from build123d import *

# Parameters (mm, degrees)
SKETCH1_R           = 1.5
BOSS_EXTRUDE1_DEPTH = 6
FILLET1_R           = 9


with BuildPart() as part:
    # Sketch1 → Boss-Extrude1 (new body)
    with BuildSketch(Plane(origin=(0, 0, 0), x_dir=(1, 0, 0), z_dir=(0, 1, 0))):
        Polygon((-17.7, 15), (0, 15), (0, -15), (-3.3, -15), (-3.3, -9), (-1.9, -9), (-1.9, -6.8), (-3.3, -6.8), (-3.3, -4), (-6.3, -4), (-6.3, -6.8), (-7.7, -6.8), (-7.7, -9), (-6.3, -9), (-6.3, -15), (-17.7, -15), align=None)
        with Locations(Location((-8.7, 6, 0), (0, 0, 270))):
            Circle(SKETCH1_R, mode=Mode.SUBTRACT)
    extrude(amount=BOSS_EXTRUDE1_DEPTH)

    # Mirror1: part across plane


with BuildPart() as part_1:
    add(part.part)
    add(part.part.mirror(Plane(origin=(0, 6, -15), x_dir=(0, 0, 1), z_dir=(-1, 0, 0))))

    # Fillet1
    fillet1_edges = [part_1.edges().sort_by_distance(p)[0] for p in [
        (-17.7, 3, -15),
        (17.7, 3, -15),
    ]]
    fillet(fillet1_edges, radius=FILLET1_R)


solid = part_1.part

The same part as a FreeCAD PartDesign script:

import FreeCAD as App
import Part
import Sketcher
Q = App.Units.Quantity


def edges_at(feature, points):
    """Names of the edges that pass closest to the given points."""
    edges = feature.Shape.Edges
    near = lambda p: min(range(len(edges)), key=lambda i: edges[i].distToShape(Part.Vertex(*p))[0])
    return sorted({f"Edge{near(p) + 1}" for p in points})


def add_polygon(sketch, points):
    """Adds a closed chain of lines whose ends are joined by coincident constraints."""
    first, n = sketch.GeometryCount, len(points)
    for a, b in zip(points, points[1:] + points[:1]):
        sketch.addGeometry(Part.LineSegment(App.Vector(*a, 0), App.Vector(*b, 0)), False)
    for i in range(n):
        sketch.addConstraint(Sketcher.Constraint("Coincident", first + i, 2, first + (i + 1) % n, 1))

doc = App.newDocument("Part")
body = doc.addObject("PartDesign::Body", "Body")

# Sketch on XZ plane
sketch1 = body.newObject("Sketcher::SketchObject", "Sketch")
sketch1.AttachmentSupport = (doc.getObject("XZ_Plane"), [""])
sketch1.MapMode = "FlatFace"
add_polygon(sketch1, [(0, -15), (-17.7, -15), (-17.7, 15), (-6.3, 15), (-6.3, 9), (-7.7, 9), (-7.7, 6.8), (-6.3, 6.8), (-6.3, 4), (-3.3, 4), (-3.3, 6.8), (-1.9, 6.8), (-1.9, 9), (-3.3, 9), (-3.3, 15), (0, 15)])  # lines 0-15
sketch1.addGeometry(Part.Circle(App.Vector(-8.7, -6, 0), App.Vector(0, 0, 1), 1.5), False)  # 16
sketch1.addConstraint(Sketcher.Constraint("Horizontal", 0))
sketch1.addConstraint(Sketcher.Constraint("Vertical", 1))
sketch1.addConstraint(Sketcher.Constraint("Horizontal", 2))
sketch1.addConstraint(Sketcher.Constraint("Vertical", 3))
sketch1.addConstraint(Sketcher.Constraint("Horizontal", 4))
sketch1.addConstraint(Sketcher.Constraint("Vertical", 5))
sketch1.addConstraint(Sketcher.Constraint("Horizontal", 6))
sketch1.addConstraint(Sketcher.Constraint("Vertical", 7))
sketch1.addConstraint(Sketcher.Constraint("Horizontal", 8))
sketch1.addConstraint(Sketcher.Constraint("Vertical", 9))
sketch1.addConstraint(Sketcher.Constraint("Horizontal", 10))
sketch1.addConstraint(Sketcher.Constraint("Vertical", 11))
sketch1.addConstraint(Sketcher.Constraint("Horizontal", 12))
sketch1.addConstraint(Sketcher.Constraint("Vertical", 13))
sketch1.addConstraint(Sketcher.Constraint("Horizontal", 14))
sketch1.addConstraint(Sketcher.Constraint("Vertical", 15))
sketch1.addConstraint(Sketcher.Constraint("Symmetric", 14, 2, 15, 2, -1, 1))
sketch1.addConstraint(Sketcher.Constraint("Horizontal", 6, 2, 9, 2))
sketch1.addConstraint(Sketcher.Constraint("Horizontal", 4, 2, 11, 2))
sketch1.addConstraint(Sketcher.Constraint("Horizontal", 2, 2, 13, 2))
sketch1.addConstraint(Sketcher.Constraint("Vertical", 3, 2, 6, 2))
sketch1.addConstraint(Sketcher.Constraint("Vertical", 9, 2, 12, 2))
sketch1.addConstraint(Sketcher.Constraint("Equal", 6, 10))
sketch1.addConstraint(Sketcher.Constraint("Diameter", 16, Q("3 mm")))
sketch1.addConstraint(Sketcher.Constraint("DistanceX", 8, 1, 8, 2, Q("3 mm")))
sketch1.addConstraint(Sketcher.Constraint("DistanceY", 1, 1, 1, 2, Q("30 mm")))
sketch1.addConstraint(Sketcher.Constraint("DistanceY", 3, 2, 3, 1, Q("6 mm")))
sketch1.addConstraint(Sketcher.Constraint("DistanceX", 0, 2, 0, 1, Q("17.7 mm")))
sketch1.addConstraint(Sketcher.Constraint("DistanceX", 2, 1, 2, 2, Q("11.4 mm")))
sketch1.addConstraint(Sketcher.Constraint("DistanceX", 4, 2, 4, 1, Q("1.4 mm")))
sketch1.addConstraint(Sketcher.Constraint("DistanceY", 5, 2, 5, 1, Q("2.2 mm")))
sketch1.addConstraint(Sketcher.Constraint("DistanceY", 7, 2, 7, 1, Q("2.8 mm")))
sketch1.addConstraint(Sketcher.Constraint("DistanceY", 16, 3, -1, 1, Q("6 mm")))
sketch1.addConstraint(Sketcher.Constraint("DistanceX", 0, 2, 16, 3, Q("9 mm")))
pad1 = body.newObject("PartDesign::Pad", "Pad")
pad1.Profile = sketch1
pad1.Length = 6
pad1.Reversed = True
body2 = doc.addObject("PartDesign::Body", "Body001")
doc.recompute()

body2.BaseFeature = body
doc.recompute()

mirroring = doc.addObject("Part::Mirroring", "Mirroring")
mirroring.Source = body
mirroring.Base = App.Vector(0, 6, -15)
mirroring.Normal = App.Vector(-1, 0, 0)
body3 = doc.addObject("PartDesign::Body", "Body002")
body3.BaseFeature = mirroring
boolean = body2.newObject("PartDesign::Boolean", "Boolean")
boolean.Type = "Fuse"
boolean.addObjects([body3])
doc.recompute()

fillet = body2.newObject("PartDesign::Fillet", "Fillet")
fillet.Base = (boolean, edges_at(boolean, [(-17.7, 3, -15), (17.7, 3, -15)]))
fillet.Radius = 9
mirroring.Visibility = False

doc.recompute()
